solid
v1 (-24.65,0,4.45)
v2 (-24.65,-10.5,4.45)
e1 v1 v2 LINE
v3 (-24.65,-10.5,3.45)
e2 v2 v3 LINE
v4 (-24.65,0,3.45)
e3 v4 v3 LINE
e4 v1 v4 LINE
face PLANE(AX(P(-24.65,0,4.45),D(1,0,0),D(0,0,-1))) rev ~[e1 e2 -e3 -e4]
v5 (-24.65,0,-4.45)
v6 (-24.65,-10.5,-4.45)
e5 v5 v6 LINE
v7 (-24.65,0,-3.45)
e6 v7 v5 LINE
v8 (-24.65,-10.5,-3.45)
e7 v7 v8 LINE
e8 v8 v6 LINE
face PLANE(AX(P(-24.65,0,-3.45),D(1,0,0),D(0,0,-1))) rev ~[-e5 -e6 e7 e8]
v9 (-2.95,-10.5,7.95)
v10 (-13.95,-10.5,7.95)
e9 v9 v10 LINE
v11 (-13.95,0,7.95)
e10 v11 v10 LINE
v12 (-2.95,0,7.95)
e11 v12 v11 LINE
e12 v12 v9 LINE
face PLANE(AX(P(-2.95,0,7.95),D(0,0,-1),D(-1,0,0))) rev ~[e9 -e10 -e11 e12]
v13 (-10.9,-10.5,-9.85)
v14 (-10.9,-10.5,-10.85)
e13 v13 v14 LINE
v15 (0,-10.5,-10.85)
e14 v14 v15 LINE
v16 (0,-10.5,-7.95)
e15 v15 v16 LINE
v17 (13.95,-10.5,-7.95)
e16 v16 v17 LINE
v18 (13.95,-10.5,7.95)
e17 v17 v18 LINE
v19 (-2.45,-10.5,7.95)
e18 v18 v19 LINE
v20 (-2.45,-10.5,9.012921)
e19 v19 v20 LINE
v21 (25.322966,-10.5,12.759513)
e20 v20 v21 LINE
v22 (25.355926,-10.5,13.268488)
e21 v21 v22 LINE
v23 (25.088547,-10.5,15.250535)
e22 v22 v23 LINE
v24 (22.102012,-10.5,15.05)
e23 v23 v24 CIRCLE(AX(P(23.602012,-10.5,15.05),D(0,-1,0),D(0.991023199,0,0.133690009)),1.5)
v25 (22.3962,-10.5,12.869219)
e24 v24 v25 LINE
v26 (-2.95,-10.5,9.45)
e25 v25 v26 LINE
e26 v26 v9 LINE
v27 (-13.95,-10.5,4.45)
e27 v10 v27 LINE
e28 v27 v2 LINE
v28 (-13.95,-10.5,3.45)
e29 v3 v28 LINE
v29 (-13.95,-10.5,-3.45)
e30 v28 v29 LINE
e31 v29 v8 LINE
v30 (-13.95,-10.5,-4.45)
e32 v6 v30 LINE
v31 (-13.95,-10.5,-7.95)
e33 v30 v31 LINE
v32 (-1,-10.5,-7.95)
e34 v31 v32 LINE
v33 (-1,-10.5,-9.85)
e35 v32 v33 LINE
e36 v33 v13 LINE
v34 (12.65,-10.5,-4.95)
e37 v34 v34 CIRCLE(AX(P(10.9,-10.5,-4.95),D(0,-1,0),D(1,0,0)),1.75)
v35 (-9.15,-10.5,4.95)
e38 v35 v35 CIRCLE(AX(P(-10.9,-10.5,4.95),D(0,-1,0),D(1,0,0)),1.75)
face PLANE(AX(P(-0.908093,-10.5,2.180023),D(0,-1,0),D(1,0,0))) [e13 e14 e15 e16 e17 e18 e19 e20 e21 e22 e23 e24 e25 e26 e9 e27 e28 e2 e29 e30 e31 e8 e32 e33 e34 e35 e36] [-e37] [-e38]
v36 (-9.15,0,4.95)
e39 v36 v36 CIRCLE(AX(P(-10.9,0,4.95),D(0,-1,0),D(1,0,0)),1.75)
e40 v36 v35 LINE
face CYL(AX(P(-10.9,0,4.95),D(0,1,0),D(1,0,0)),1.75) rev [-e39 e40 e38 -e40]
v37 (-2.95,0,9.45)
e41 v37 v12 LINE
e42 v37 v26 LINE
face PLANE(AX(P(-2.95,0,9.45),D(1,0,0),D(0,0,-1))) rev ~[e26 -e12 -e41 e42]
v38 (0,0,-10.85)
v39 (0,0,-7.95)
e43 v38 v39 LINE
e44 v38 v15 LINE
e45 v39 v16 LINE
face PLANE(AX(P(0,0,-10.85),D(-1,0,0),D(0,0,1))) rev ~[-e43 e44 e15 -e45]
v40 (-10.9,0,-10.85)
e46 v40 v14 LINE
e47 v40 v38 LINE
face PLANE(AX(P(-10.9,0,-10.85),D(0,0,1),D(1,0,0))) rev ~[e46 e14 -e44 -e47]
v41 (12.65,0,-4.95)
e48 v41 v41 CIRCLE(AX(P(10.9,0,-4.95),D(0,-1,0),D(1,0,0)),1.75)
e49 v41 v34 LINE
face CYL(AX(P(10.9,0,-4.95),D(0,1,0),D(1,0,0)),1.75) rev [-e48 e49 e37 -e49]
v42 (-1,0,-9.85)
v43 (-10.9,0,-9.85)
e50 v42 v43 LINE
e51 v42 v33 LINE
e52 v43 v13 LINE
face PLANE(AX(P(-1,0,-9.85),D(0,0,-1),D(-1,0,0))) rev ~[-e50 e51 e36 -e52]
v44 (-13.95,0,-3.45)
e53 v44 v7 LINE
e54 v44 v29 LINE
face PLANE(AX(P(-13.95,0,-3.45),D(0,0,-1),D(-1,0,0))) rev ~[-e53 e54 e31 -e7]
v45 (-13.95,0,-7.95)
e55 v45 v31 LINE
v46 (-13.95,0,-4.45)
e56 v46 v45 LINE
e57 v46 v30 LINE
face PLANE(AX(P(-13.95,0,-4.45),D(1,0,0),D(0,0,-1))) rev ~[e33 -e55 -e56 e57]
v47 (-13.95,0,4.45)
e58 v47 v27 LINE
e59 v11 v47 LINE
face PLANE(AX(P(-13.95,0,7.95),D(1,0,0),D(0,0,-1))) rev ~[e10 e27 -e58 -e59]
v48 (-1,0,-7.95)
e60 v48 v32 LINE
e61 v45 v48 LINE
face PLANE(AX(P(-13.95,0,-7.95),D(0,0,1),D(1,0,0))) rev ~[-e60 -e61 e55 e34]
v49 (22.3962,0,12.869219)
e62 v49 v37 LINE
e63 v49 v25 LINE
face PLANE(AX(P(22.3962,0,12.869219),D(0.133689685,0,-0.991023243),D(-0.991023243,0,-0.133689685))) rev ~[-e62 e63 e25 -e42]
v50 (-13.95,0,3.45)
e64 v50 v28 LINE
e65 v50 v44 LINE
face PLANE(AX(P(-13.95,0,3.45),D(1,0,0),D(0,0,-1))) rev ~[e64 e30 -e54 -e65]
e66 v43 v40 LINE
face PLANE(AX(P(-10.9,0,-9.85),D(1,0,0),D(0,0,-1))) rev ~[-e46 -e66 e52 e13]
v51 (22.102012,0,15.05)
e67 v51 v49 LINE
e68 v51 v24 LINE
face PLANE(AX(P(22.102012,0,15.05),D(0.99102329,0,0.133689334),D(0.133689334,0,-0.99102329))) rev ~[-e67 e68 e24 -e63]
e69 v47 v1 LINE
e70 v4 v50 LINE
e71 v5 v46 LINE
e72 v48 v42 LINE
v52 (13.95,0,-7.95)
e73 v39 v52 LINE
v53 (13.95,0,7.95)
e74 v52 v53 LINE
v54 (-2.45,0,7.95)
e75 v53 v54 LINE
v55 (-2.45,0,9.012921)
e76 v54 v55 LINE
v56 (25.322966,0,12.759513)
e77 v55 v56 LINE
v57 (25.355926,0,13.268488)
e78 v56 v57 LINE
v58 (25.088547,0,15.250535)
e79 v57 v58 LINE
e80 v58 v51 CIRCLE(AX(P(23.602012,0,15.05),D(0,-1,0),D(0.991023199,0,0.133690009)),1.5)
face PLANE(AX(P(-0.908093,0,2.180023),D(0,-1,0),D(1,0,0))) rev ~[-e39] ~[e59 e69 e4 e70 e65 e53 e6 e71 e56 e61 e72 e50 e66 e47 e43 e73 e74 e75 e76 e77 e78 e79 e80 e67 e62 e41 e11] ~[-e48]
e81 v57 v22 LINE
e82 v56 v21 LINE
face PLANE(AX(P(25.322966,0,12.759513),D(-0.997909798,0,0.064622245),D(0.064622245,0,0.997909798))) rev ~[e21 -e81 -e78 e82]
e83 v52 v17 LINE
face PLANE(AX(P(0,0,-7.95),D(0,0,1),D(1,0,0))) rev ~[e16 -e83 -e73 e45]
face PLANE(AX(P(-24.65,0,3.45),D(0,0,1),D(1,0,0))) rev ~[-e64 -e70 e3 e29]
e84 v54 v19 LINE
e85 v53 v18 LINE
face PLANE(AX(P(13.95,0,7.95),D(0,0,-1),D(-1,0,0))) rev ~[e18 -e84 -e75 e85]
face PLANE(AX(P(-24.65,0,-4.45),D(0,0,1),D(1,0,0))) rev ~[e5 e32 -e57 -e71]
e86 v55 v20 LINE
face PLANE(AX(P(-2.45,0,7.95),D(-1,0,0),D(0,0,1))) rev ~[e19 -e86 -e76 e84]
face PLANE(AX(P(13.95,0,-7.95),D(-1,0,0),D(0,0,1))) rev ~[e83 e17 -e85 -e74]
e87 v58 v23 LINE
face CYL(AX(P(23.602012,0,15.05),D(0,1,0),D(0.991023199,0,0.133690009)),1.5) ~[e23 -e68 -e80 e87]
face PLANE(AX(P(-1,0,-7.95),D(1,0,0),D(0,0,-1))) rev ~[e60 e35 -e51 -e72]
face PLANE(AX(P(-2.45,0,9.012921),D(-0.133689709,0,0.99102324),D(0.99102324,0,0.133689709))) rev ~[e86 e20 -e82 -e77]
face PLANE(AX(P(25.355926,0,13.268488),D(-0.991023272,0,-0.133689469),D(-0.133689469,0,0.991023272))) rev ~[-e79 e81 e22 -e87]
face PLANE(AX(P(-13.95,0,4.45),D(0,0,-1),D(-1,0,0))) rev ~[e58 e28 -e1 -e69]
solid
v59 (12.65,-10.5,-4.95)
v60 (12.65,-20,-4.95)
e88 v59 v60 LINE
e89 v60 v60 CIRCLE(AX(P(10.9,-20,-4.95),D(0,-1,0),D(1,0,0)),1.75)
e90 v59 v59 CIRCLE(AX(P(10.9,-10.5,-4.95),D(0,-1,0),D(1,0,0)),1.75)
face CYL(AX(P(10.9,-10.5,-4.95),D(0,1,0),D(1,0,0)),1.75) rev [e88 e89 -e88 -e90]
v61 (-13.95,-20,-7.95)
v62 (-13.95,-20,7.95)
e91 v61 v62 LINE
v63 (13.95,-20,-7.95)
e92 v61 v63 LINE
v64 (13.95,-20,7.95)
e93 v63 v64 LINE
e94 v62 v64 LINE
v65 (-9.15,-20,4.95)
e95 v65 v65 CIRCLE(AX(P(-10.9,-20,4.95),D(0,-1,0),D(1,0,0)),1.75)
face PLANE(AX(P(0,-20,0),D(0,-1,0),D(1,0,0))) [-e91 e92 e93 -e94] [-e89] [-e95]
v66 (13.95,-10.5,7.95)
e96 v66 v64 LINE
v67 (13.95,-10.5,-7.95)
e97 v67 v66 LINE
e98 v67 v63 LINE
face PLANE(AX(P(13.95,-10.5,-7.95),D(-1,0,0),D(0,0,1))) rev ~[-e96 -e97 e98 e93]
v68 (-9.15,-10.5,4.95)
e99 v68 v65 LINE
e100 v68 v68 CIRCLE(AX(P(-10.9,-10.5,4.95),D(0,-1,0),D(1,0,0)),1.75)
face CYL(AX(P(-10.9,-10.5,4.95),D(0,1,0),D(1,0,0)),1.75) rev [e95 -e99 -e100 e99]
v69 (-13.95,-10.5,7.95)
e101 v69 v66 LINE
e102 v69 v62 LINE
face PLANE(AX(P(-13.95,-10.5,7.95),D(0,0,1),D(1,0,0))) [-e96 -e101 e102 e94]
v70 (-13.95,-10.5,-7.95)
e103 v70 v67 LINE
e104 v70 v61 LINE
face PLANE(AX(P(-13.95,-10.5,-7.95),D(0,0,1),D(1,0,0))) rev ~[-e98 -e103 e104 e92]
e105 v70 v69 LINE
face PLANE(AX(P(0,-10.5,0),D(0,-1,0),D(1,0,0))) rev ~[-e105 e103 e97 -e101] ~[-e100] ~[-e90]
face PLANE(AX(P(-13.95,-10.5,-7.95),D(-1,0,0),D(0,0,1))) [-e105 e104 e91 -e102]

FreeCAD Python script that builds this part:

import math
import FreeCAD as App
import Part
import Sketcher
from FreeCAD import Vector
Q = App.Units.Quantity

doc = App.newDocument("Part")
body = doc.addObject("PartDesign::Body", "Body")

sketch1 = doc.addObject("Sketcher::SketchObject", "Sketch")
body.addObject(sketch1)
sketch1.AttachmentSupport = (doc.XZ_Plane, [""])
sketch1.MapMode = "FlatFace"
sketch1.addGeometry(Part.LineSegment(Vector(0, -8, 0), Vector(13.9, -8, 0)), False)
sketch1.addGeometry(Part.LineSegment(Vector(13.9, -8, 0), Vector(13.9, 8, 0)), False)
sketch1.addGeometry(Part.LineSegment(Vector(13.9, 8, 0), Vector(-2.5, 8, 0)), False)
sketch1.addGeometry(Part.LineSegment(Vector(-2.5, 8, 0), Vector(-2.5, 9, 0)), False)
sketch1.addGeometry(Part.LineSegment(Vector(-2.5, 9, 0), Vector(25.3, 12.8, 0)), False)
sketch1.addGeometry(Part.LineSegment(Vector(25.3, 12.8, 0), Vector(25.4, 13.3, 0)), False)
sketch1.addGeometry(Part.LineSegment(Vector(25.4, 13.3, 0), Vector(25.1, 15.3, 0)), False)
sketch1.addGeometry(Part.ArcOfCircle(Part.Circle(Vector(23.6, 15, 0), Vector(0, 0, 1), 1.5), math.radians(8), math.radians(180)), False)
sketch1.addGeometry(Part.LineSegment(Vector(22.1, 15.1, 0), Vector(22.4, 12.9, 0)), False)
sketch1.addGeometry(Part.LineSegment(Vector(22.4, 12.9, 0), Vector(-3, 9.4, 0)), False)
sketch1.addGeometry(Part.LineSegment(Vector(-3, 9.4, 0), Vector(-3, 8, 0)), False)
sketch1.addGeometry(Part.LineSegment(Vector(-3, 8, 0), Vector(-13.9, 8, 0)), False)
sketch1.addGeometry(Part.LineSegment(Vector(-13.9, 8, 0), Vector(-13.9, 4.5, 0)), False)
sketch1.addGeometry(Part.LineSegment(Vector(-13.9, 4.5, 0), Vector(-24.6, 4.5, 0)), False)
sketch1.addGeometry(Part.LineSegment(Vector(-24.6, 4.5, 0), Vector(-24.6, 3.5, 0)), False)
sketch1.addGeometry(Part.LineSegment(Vector(-24.6, 3.5, 0), Vector(-13.9, 3.5, 0)), False)
sketch1.addGeometry(Part.LineSegment(Vector(-13.9, 3.5, 0), Vector(-13.9, -3.5, 0)), False)
sketch1.addGeometry(Part.LineSegment(Vector(-13.9, -3.5, 0), Vector(-24.6, -3.5, 0)), False)
sketch1.addGeometry(Part.LineSegment(Vector(-24.6, -3.5, 0), Vector(-24.6, -4.5, 0)), False)
sketch1.addGeometry(Part.LineSegment(Vector(-24.6, -4.5, 0), Vector(-13.9, -4.5, 0)), False)
sketch1.addGeometry(Part.LineSegment(Vector(-13.9, -4.5, 0), Vector(-13.9, -8, 0)), False)
sketch1.addGeometry(Part.LineSegment(Vector(-13.9, -8, 0), Vector(-1, -8, 0)), False)
sketch1.addGeometry(Part.LineSegment(Vector(-1, -8, 0), Vector(-1, -9.8, 0)), False)
sketch1.addGeometry(Part.LineSegment(Vector(-1, -9.8, 0), Vector(-10.9, -9.8, 0)), False)
sketch1.addGeometry(Part.LineSegment(Vector(-10.9, -9.8, 0), Vector(-10.9, -10.8, 0)), False)
sketch1.addGeometry(Part.LineSegment(Vector(-10.9, -10.8, 0), Vector(0, -10.8, 0)), False)
sketch1.addGeometry(Part.LineSegment(Vector(0, -10.8, 0), Vector(0, -8, 0)), False)
sketch1.addGeometry(Part.Circle(Vector(10.9, -5, 0), Vector(0, 0, 1), 1.8), False)
sketch1.addGeometry(Part.Circle(Vector(-10.9, 5, 0), Vector(0, 0, 1), 1.8), False)
sketch1.addConstraint(Sketcher.Constraint("Coincident", 0, 2, 1, 1))
sketch1.addConstraint(Sketcher.Constraint("Coincident", 1, 2, 2, 1))
sketch1.addConstraint(Sketcher.Constraint("Coincident", 2, 2, 3, 1))
sketch1.addConstraint(Sketcher.Constraint("Coincident", 3, 2, 4, 1))
sketch1.addConstraint(Sketcher.Constraint("Coincident", 4, 2, 5, 1))
sketch1.addConstraint(Sketcher.Constraint("Coincident", 5, 2, 6, 1))
sketch1.addConstraint(Sketcher.Constraint("Tangent", 6, 2, 7, 1))
sketch1.addConstraint(Sketcher.Constraint("Coincident", 7, 2, 8, 1))
sketch1.addConstraint(Sketcher.Constraint("Coincident", 8, 2, 9, 1))
sketch1.addConstraint(Sketcher.Constraint("Coincident", 9, 2, 10, 1))
sketch1.addConstraint(Sketcher.Constraint("Coincident", 10, 2, 11, 1))
sketch1.addConstraint(Sketcher.Constraint("Coincident", 11, 2, 12, 1))
sketch1.addConstraint(Sketcher.Constraint("Coincident", 12, 2, 13, 1))
sketch1.addConstraint(Sketcher.Constraint("Coincident", 13, 2, 14, 1))
sketch1.addConstraint(Sketcher.Constraint("Coincident", 14, 2, 15, 1))
sketch1.addConstraint(Sketcher.Constraint("Coincident", 15, 2, 16, 1))
sketch1.addConstraint(Sketcher.Constraint("Coincident", 16, 2, 17, 1))
sketch1.addConstraint(Sketcher.Constraint("Coincident", 17, 2, 18, 1))
sketch1.addConstraint(Sketcher.Constraint("Coincident", 18, 2, 19, 1))
sketch1.addConstraint(Sketcher.Constraint("Coincident", 19, 2, 20, 1))
sketch1.addConstraint(Sketcher.Constraint("Coincident", 20, 2, 21, 1))
sketch1.addConstraint(Sketcher.Constraint("Coincident", 21, 2, 22, 1))
sketch1.addConstraint(Sketcher.Constraint("Coincident", 22, 2, 23, 1))
sketch1.addConstraint(Sketcher.Constraint("Coincident", 23, 2, 24, 1))
sketch1.addConstraint(Sketcher.Constraint("Coincident", 24, 2, 25, 1))
sketch1.addConstraint(Sketcher.Constraint("Coincident", 25, 2, 26, 1))
sketch1.addConstraint(Sketcher.Constraint("Coincident", 26, 2, 0, 1))
sketch1.addConstraint(Sketcher.Constraint("Horizontal", 0))
sketch1.addConstraint(Sketcher.Constraint("Vertical", 1))
sketch1.addConstraint(Sketcher.Constraint("Horizontal", 2))
sketch1.addConstraint(Sketcher.Constraint("Vertical", 3))
sketch1.addConstraint(Sketcher.Constraint("Vertical", 10))
sketch1.addConstraint(Sketcher.Constraint("Horizontal", 11))
sketch1.addConstraint(Sketcher.Constraint("Vertical", 12))
sketch1.addConstraint(Sketcher.Constraint("Horizontal", 13))
sketch1.addConstraint(Sketcher.Constraint("Vertical", 14))
sketch1.addConstraint(Sketcher.Constraint("Horizontal", 15))
sketch1.addConstraint(Sketcher.Constraint("Vertical", 16))
sketch1.addConstraint(Sketcher.Constraint("Horizontal", 17))
sketch1.addConstraint(Sketcher.Constraint("Vertical", 18))
sketch1.addConstraint(Sketcher.Constraint("Horizontal", 19))
sketch1.addConstraint(Sketcher.Constraint("Vertical", 20))
sketch1.addConstraint(Sketcher.Constraint("Horizontal", 21))
sketch1.addConstraint(Sketcher.Constraint("Vertical", 22))
sketch1.addConstraint(Sketcher.Constraint("Horizontal", 23))
sketch1.addConstraint(Sketcher.Constraint("Vertical", 24))
sketch1.addConstraint(Sketcher.Constraint("Horizontal", 25))
sketch1.addConstraint(Sketcher.Constraint("Vertical", 26))
sketch1.addConstraint(Sketcher.Constraint("Equal", 27, 28))
sketch1.addConstraint(Sketcher.Constraint("Symmetric", 27, 3, 28, 3, -1, 1))
sketch1.addConstraint(Sketcher.Constraint("Symmetric", 0, 2, 11, 2, -1, 1))
sketch1.addConstraint(Sketcher.Constraint("Symmetric", 1, 2, 20, 2, -1, 1))
sketch1.addConstraint(Sketcher.Constraint("Symmetric", 14, 2, 17, 2, -1))
sketch1.addConstraint(Sketcher.Constraint("PointOnObject", 25, 2, -2))
sketch1.addConstraint(Sketcher.Constraint("Perpendicular", 4, 6))
sketch1.addConstraint(Sketcher.Constraint("Parallel", 6, 8))
sketch1.addConstraint(Sketcher.Constraint("Perpendicular", 8, 9))
sketch1.addConstraint(Sketcher.Constraint("Horizontal", 2, 2, 10, 2))
sketch1.addConstraint(Sketcher.Constraint("Vertical", 12, 2, 15, 2))
sketch1.addConstraint(Sketcher.Constraint("Vertical", 28, 3, 23, 2))
sketch1.addConstraint(Sketcher.Constraint("Equal", 14, 18))
sketch1.addConstraint(Sketcher.Constraint("Equal", 18, 24))
sketch1.addConstraint(Sketcher.Constraint("Diameter", 27, Q("3.5 mm")))
sketch1.addConstraint(Sketcher.Constraint("Radius", 7, Q("1.5 mm")))
sketch1.addConstraint(Sketcher.Constraint("DistanceX", 11, 2, 11, 1, Q("11 mm")))
sketch1.addConstraint(Sketcher.Constraint("DistanceY", 14, 2, 14, 1, Q("1 mm")))
sketch1.addConstraint(Sketcher.Constraint("Distance", 6, Q("2 mm")))
sketch1.addConstraint(Sketcher.Constraint("DistanceX", 2, 2, 2, 1, Q("16.4 mm")))
sketch1.addConstraint(Sketcher.Constraint("DistanceX", 13, 2, 13, 1, Q("10.7 mm")))
sketch1.addConstraint(Sketcher.Constraint("DistanceX", 23, 2, 23, 1, Q("9.9 mm")))
sketch1.addConstraint(Sketcher.Constraint("DistanceX", 25, 1, 25, 2, Q("10.9 mm")))
sketch1.addConstraint(Sketcher.Constraint("DistanceY", 1, 1, 1, 2, Q("15.9 mm")))
sketch1.addConstraint(Sketcher.Constraint("DistanceY", 10, 2, 10, 1, Q("1.5 mm")))
sketch1.addConstraint(Sketcher.Constraint("DistanceY", 12, 2, 12, 1, Q("3.5 mm")))
sketch1.addConstraint(Sketcher.Constraint("DistanceY", 22, 2, 22, 1, Q("1.9 mm")))
sketch1.addConstraint(Sketcher.Constraint("DistanceY", 27, 3, 7, 3, Q("20 mm")))
sketch1.addConstraint(Sketcher.Constraint("DistanceY", 0, 2, 27, 3, Q("3 mm")))
sketch1.addConstraint(Sketcher.Constraint("DistanceX", 0, 1, 0, 2, Q("13.95 mm")))
sketch1.addConstraint(Sketcher.Constraint("DistanceY", 1, 2, 7, 2, Q("7.1 mm")))
sketch1.addConstraint(Sketcher.Constraint("DistanceY", 3, 1, 3, 2, Q("1.062921 mm")))
sketch1.addConstraint(Sketcher.Constraint("DistanceX", -1, 1, 8, 2, Q("22.3962 mm")))
sketch1.addConstraint(Sketcher.Constraint("Distance", 5, Q("0.510041 mm")))
sketch1.addConstraint(Sketcher.Constraint("DistanceY", -1, 1, 8, 2, Q("12.869219 mm")))
pad1 = doc.addObject("PartDesign::Pad", "Pad")
body.addObject(pad1)
pad1.Profile = sketch1
pad1.Length = 10.5
body2 = doc.addObject("PartDesign::Body", "Body001")

sketch2 = doc.addObject("Sketcher::SketchObject", "Sketch001")
body2.addObject(sketch2)
sketch2.AttachmentSupport = (doc.getObject("XZ_Plane001"), [""])
sketch2.MapMode = "FlatFace"
sketch2.AttachmentOffset = App.Placement(Vector(0, 0, 10.5), App.Rotation())
sketch2.addGeometry(Part.LineSegment(Vector(-13.9, 8, 0), Vector(-13.9, -8, 0)), False)
sketch2.addGeometry(Part.LineSegment(Vector(-13.9, -8, 0), Vector(13.9, -8, 0)), False)
sketch2.addGeometry(Part.LineSegment(Vector(13.9, -8, 0), Vector(13.9, 8, 0)), False)
sketch2.addGeometry(Part.LineSegment(Vector(13.9, 8, 0), Vector(-13.9, 8, 0)), False)
sketch2.addGeometry(Part.Circle(Vector(10.9, -5, 0), Vector(0, 0, 1), 1.8), False)
sketch2.addGeometry(Part.Circle(Vector(-10.9, 5, 0), Vector(0, 0, 1), 1.8), False)
sketch2.addConstraint(Sketcher.Constraint("Coincident", 0, 2, 1, 1))
sketch2.addConstraint(Sketcher.Constraint("Coincident", 1, 2, 2, 1))
sketch2.addConstraint(Sketcher.Constraint("Coincident", 2, 2, 3, 1))
sketch2.addConstraint(Sketcher.Constraint("Coincident", 3, 2, 0, 1))
sketch2.addConstraint(Sketcher.Constraint("Vertical", 0))
sketch2.addConstraint(Sketcher.Constraint("Horizontal", 1))
sketch2.addConstraint(Sketcher.Constraint("Vertical", 2))
sketch2.addConstraint(Sketcher.Constraint("Horizontal", 3))
sketch2.addConstraint(Sketcher.Constraint("Equal", 4, 5))
sketch2.addConstraint(Sketcher.Constraint("Symmetric", 4, 3, 5, 3, -1, 1))
sketch2.addConstraint(Sketcher.Constraint("Symmetric", 0, 2, 2, 2, -1, 1))
sketch2.addConstraint(Sketcher.Constraint("Diameter", 4, Q("3.5 mm")))
sketch2.addConstraint(Sketcher.Constraint("DistanceX", 1, 1, 1, 2, Q("27.9 mm")))
sketch2.addConstraint(Sketcher.Constraint("DistanceY", 0, 2, 0, 1, Q("15.9 mm")))
sketch2.addConstraint(Sketcher.Constraint("DistanceY", 0, 2, 4, 3, Q("3 mm")))
sketch2.addConstraint(Sketcher.Constraint("DistanceX", -1, 1, 4, 3, Q("10.9 mm")))
pad2 = doc.addObject("PartDesign::Pad", "Pad001")
body2.addObject(pad2)
pad2.Profile = sketch2
pad2.Length = 9.5

doc.recompute()
